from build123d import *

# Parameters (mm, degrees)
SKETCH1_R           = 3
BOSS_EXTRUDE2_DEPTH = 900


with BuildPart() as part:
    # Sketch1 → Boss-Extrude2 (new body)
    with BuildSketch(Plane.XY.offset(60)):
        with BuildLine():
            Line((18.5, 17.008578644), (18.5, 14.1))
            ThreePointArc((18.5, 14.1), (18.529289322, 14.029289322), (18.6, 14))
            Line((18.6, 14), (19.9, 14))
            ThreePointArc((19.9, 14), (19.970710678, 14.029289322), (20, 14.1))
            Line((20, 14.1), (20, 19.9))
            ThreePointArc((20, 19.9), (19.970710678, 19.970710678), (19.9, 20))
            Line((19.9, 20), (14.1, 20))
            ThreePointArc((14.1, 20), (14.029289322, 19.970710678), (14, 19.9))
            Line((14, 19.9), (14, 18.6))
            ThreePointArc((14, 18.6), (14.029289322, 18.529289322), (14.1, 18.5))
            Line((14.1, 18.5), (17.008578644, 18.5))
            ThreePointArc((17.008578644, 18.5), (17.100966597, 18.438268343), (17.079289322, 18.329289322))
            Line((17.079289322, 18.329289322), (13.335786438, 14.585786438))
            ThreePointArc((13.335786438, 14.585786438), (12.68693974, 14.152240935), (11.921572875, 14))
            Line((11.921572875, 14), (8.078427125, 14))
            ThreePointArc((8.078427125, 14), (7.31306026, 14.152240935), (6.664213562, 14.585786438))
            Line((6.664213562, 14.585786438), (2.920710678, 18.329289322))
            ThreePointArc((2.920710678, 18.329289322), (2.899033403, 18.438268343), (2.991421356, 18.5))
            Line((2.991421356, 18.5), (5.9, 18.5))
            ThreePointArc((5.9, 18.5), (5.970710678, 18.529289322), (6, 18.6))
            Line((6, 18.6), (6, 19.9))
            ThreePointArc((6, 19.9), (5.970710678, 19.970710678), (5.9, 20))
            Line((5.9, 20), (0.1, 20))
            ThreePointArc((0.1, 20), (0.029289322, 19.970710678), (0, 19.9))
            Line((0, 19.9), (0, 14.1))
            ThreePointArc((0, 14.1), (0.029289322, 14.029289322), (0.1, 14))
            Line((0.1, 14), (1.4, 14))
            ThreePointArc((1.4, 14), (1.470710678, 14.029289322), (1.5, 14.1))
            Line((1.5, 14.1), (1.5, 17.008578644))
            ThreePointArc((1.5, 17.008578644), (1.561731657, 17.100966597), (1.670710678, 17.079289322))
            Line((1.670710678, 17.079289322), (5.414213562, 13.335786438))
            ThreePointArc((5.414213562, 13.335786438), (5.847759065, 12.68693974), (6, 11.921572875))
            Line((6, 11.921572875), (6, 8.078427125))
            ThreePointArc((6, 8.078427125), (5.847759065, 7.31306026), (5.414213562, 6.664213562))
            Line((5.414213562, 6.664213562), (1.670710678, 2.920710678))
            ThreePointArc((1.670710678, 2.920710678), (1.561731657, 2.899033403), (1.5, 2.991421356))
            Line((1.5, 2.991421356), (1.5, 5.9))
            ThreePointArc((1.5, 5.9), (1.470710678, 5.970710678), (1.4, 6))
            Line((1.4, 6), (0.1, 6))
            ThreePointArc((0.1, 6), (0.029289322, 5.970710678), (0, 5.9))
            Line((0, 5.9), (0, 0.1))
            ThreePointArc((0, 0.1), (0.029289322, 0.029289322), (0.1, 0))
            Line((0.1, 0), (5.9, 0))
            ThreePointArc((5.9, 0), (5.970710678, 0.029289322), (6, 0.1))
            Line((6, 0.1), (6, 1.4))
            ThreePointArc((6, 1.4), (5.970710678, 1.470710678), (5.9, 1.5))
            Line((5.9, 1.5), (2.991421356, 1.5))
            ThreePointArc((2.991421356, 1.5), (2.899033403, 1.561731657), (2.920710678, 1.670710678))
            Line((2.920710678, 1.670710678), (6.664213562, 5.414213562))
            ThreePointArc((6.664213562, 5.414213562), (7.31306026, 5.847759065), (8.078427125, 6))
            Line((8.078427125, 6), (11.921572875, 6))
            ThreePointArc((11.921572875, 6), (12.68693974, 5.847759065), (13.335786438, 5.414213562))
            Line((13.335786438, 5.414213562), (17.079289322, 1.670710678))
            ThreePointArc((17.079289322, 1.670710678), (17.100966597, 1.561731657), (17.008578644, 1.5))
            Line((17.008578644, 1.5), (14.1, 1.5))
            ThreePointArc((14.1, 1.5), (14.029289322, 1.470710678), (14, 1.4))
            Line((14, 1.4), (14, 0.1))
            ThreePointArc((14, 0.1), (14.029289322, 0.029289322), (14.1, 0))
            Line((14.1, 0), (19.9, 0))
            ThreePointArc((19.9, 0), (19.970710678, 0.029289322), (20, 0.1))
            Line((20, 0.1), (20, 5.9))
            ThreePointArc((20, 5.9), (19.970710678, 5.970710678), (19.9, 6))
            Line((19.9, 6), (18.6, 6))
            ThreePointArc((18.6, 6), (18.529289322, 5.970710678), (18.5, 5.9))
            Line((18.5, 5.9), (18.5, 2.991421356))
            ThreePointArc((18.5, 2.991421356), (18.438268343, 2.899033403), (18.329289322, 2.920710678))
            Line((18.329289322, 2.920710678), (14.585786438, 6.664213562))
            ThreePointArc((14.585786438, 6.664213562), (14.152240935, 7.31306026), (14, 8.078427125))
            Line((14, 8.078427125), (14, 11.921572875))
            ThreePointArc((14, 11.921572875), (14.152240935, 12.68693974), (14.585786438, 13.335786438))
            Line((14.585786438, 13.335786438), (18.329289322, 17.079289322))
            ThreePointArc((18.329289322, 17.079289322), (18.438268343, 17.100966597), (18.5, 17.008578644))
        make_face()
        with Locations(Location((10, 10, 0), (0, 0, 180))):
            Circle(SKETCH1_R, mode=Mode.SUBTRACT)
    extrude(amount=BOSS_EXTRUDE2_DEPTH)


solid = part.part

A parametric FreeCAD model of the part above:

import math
import FreeCAD as App
import Part
import Sketcher

V = App.Vector
Q = App.Units.Quantity

doc = App.newDocument("Part")
params = doc.addObject("Spreadsheet::Sheet", "Params")
for row, (alias, value) in enumerate([
    ("sketch1_diameter", "6 mm"),
    ("sketch1_radius", "2 mm"),
    ("sketch1_radius2", "0.1 mm"),
    ("sketch1_width", "1.3 mm"),
    ("sketch1_width2", "5.8 mm"),
    ("pad1_length", "900 mm"),
], start=1):
    params.set(f"A{row}", alias)
    params.set(f"B{row}", "=" + value)
    params.setAlias(f"B{row}", alias)

body = doc.addObject("PartDesign::Body", "Body")

sketch1 = body.newObject("Sketcher::SketchObject", "Sketch")
sketch1.AttachmentSupport = (doc.getObject("XY_Plane"), [""])
sketch1.MapMode = "FlatFace"
sketch1.AttachmentOffset = App.Placement(V(0, 0, 60), App.Rotation())
sketch1.addGeometry(Part.LineSegment(V(18.5, 17.01, 0), V(18.5, 14.1, 0)), False)
sketch1.addGeometry(Part.ArcOfCircle(Part.Circle(V(18.6, 14.1, 0), V(0, 0, 1), 0.1), math.radians(180), math.radians(270)), False)
sketch1.addGeometry(Part.LineSegment(V(18.6, 14, 0), V(19.9, 14, 0)), False)
sketch1.addGeometry(Part.ArcOfCircle(Part.Circle(V(19.9, 14.1, 0), V(0, 0, 1), 0.1), math.radians(-90), math.radians(0)), False)
sketch1.addGeometry(Part.LineSegment(V(20, 14.1, 0), V(20, 19.9, 0)), False)
sketch1.addGeometry(Part.ArcOfCircle(Part.Circle(V(19.9, 19.9, 0), V(0, 0, 1), 0.1), math.radians(0), math.radians(90)), False)
sketch1.addGeometry(Part.LineSegment(V(19.9, 20, 0), V(14.1, 20, 0)), False)
sketch1.addGeometry(Part.ArcOfCircle(Part.Circle(V(14.1, 19.9, 0), V(0, 0, 1), 0.1), math.radians(90), math.radians(180)), False)
sketch1.addGeometry(Part.LineSegment(V(14, 19.9, 0), V(14, 18.6, 0)), False)
sketch1.addGeometry(Part.ArcOfCircle(Part.Circle(V(14.1, 18.6, 0), V(0, 0, 1), 0.1), math.radians(180), math.radians(270)), False)
sketch1.addGeometry(Part.LineSegment(V(14.1, 18.5, 0), V(17.01, 18.5, 0)), False)
sketch1.addGeometry(Part.ArcOfCircle(Part.Circle(V(17.01, 18.4, 0), V(0, 0, 1), 0.1), math.radians(-45), math.radians(90)), False)
sketch1.addGeometry(Part.LineSegment(V(17.08, 18.33, 0), V(13.34, 14.59, 0)), False)
sketch1.addGeometry(Part.ArcOfCircle(Part.Circle(V(11.92, 16, 0), V(0, 0, 1), 2), math.radians(-90), math.radians(-45)), False)
sketch1.addGeometry(Part.LineSegment(V(11.92, 14, 0), V(8.08, 14, 0)), False)
sketch1.addGeometry(Part.ArcOfCircle(Part.Circle(V(8.08, 16, 0), V(0, 0, 1), 2), math.radians(-135), math.radians(-90)), False)
sketch1.addGeometry(Part.LineSegment(V(6.66, 14.59, 0), V(2.92, 18.33, 0)), False)
sketch1.addGeometry(Part.ArcOfCircle(Part.Circle(V(2.99, 18.4, 0), V(0, 0, 1), 0.1), math.radians(90), math.radians(225)), False)
sketch1.addGeometry(Part.LineSegment(V(2.99, 18.5, 0), V(5.9, 18.5, 0)), False)
sketch1.addGeometry(Part.ArcOfCircle(Part.Circle(V(5.9, 18.6, 0), V(0, 0, 1), 0.1), math.radians(-90), math.radians(0)), False)
sketch1.addGeometry(Part.LineSegment(V(6, 18.6, 0), V(6, 19.9, 0)), False)
sketch1.addGeometry(Part.ArcOfCircle(Part.Circle(V(5.9, 19.9, 0), V(0, 0, 1), 0.1), math.radians(0), math.radians(90)), False)
sketch1.addGeometry(Part.LineSegment(V(5.9, 20, 0), V(0.1, 20, 0)), False)
sketch1.addGeometry(Part.ArcOfCircle(Part.Circle(V(0.1, 19.9, 0), V(0, 0, 1), 0.1), math.radians(90), math.radians(180)), False)
sketch1.addGeometry(Part.LineSegment(V(0, 19.9, 0), V(0, 14.1, 0)), False)
sketch1.addGeometry(Part.ArcOfCircle(Part.Circle(V(0.1, 14.1, 0), V(0, 0, 1), 0.1), math.radians(180), math.radians(270)), False)
sketch1.addGeometry(Part.LineSegment(V(0.1, 14, 0), V(1.4, 14, 0)), False)
sketch1.addGeometry(Part.ArcOfCircle(Part.Circle(V(1.4, 14.1, 0), V(0, 0, 1), 0.1), math.radians(-90), math.radians(0)), False)
sketch1.addGeometry(Part.LineSegment(V(1.5, 14.1, 0), V(1.5, 17.01, 0)), False)
sketch1.addGeometry(Part.ArcOfCircle(Part.Circle(V(1.6, 17.01, 0), V(0, 0, 1), 0.1), math.radians(45), math.radians(180)), False)
sketch1.addGeometry(Part.LineSegment(V(1.67, 17.08, 0), V(5.41, 13.34, 0)), False)
sketch1.addGeometry(Part.ArcOfCircle(Part.Circle(V(4, 11.92, 0), V(0, 0, 1), 2), math.radians(0), math.radians(45)), False)
sketch1.addGeometry(Part.LineSegment(V(6, 11.92, 0), V(6, 8.08, 0)), False)
sketch1.addGeometry(Part.ArcOfCircle(Part.Circle(V(4, 8.08, 0), V(0, 0, 1), 2), math.radians(-45), math.radians(0)), False)
sketch1.addGeometry(Part.LineSegment(V(5.41, 6.66, 0), V(1.67, 2.92, 0)), False)
sketch1.addGeometry(Part.ArcOfCircle(Part.Circle(V(1.6, 2.99, 0), V(0, 0, 1), 0.1), math.radians(180), math.radians(315)), False)
sketch1.addGeometry(Part.LineSegment(V(1.5, 2.99, 0), V(1.5, 5.9, 0)), False)
sketch1.addGeometry(Part.ArcOfCircle(Part.Circle(V(1.4, 5.9, 0), V(0, 0, 1), 0.1), math.radians(0), math.radians(90)), False)
sketch1.addGeometry(Part.LineSegment(V(1.4, 6, 0), V(0.1, 6, 0)), False)
sketch1.addGeometry(Part.ArcOfCircle(Part.Circle(V(0.1, 5.9, 0), V(0, 0, 1), 0.1), math.radians(90), math.radians(180)), False)
sketch1.addGeometry(Part.LineSegment(V(0, 5.9, 0), V(0, 0.1, 0)), False)
sketch1.addGeometry(Part.ArcOfCircle(Part.Circle(V(0.1, 0.1, 0), V(0, 0, 1), 0.1), math.radians(180), math.radians(270)), False)
sketch1.addGeometry(Part.LineSegment(V(0.1, 0, 0), V(5.9, 0, 0)), False)
sketch1.addGeometry(Part.ArcOfCircle(Part.Circle(V(5.9, 0.1, 0), V(0, 0, 1), 0.1), math.radians(-90), math.radians(0)), False)
sketch1.addGeometry(Part.LineSegment(V(6, 0.1, 0), V(6, 1.4, 0)), False)
sketch1.addGeometry(Part.ArcOfCircle(Part.Circle(V(5.9, 1.4, 0), V(0, 0, 1), 0.1), math.radians(0), math.radians(90)), False)
sketch1.addGeometry(Part.LineSegment(V(5.9, 1.5, 0), V(2.99, 1.5, 0)), False)
sketch1.addGeometry(Part.ArcOfCircle(Part.Circle(V(2.99, 1.6, 0), V(0, 0, 1), 0.1), math.radians(135), math.radians(270)), False)
sketch1.addGeometry(Part.LineSegment(V(2.92, 1.67, 0), V(6.66, 5.41, 0)), False)
sketch1.addGeometry(Part.ArcOfCircle(Part.Circle(V(8.08, 4, 0), V(0, 0, 1), 2), math.radians(90), math.radians(135)), False)
sketch1.addGeometry(Part.LineSegment(V(8.08, 6, 0), V(11.92, 6, 0)), False)
sketch1.addGeometry(Part.ArcOfCircle(Part.Circle(V(11.92, 4, 0), V(0, 0, 1), 2), math.radians(45), math.radians(90)), False)
sketch1.addGeometry(Part.LineSegment(V(13.34, 5.41, 0), V(17.08, 1.67, 0)), False)
sketch1.addGeometry(Part.ArcOfCircle(Part.Circle(V(17.01, 1.6, 0), V(0, 0, 1), 0.1), math.radians(-90), math.radians(45)), False)
sketch1.addGeometry(Part.LineSegment(V(17.01, 1.5, 0), V(14.1, 1.5, 0)), False)
sketch1.addGeometry(Part.ArcOfCircle(Part.Circle(V(14.1, 1.4, 0), V(0, 0, 1), 0.1), math.radians(90), math.radians(180)), False)
sketch1.addGeometry(Part.LineSegment(V(14, 1.4, 0), V(14, 0.1, 0)), False)
sketch1.addGeometry(Part.ArcOfCircle(Part.Circle(V(14.1, 0.1, 0), V(0, 0, 1), 0.1), math.radians(180), math.radians(270)), False)
sketch1.addGeometry(Part.LineSegment(V(14.1, 0, 0), V(19.9, 0, 0)), False)
sketch1.addGeometry(Part.ArcOfCircle(Part.Circle(V(19.9, 0.1, 0), V(0, 0, 1), 0.1), math.radians(-90), math.radians(0)), False)
sketch1.addGeometry(Part.LineSegment(V(20, 0.1, 0), V(20, 5.9, 0)), False)
sketch1.addGeometry(Part.ArcOfCircle(Part.Circle(V(19.9, 5.9, 0), V(0, 0, 1), 0.1), math.radians(0), math.radians(90)), False)
sketch1.addGeometry(Part.LineSegment(V(19.9, 6, 0), V(18.6, 6, 0)), False)
sketch1.addGeometry(Part.ArcOfCircle(Part.Circle(V(18.6, 5.9, 0), V(0, 0, 1), 0.1), math.radians(90), math.radians(180)), False)
sketch1.addGeometry(Part.LineSegment(V(18.5, 5.9, 0), V(18.5, 2.99, 0)), False)
sketch1.addGeometry(Part.ArcOfCircle(Part.Circle(V(18.4, 2.99, 0), V(0, 0, 1), 0.1), math.radians(-135), math.radians(0)), False)
sketch1.addGeometry(Part.LineSegment(V(18.33, 2.92, 0), V(14.59, 6.66, 0)), False)
sketch1.addGeometry(Part.ArcOfCircle(Part.Circle(V(16, 8.08, 0), V(0, 0, 1), 2), math.radians(180), math.radians(225)), False)
sketch1.addGeometry(Part.LineSegment(V(14, 8.08, 0), V(14, 11.92, 0)), False)
sketch1.addGeometry(Part.ArcOfCircle(Part.Circle(V(16, 11.92, 0), V(0, 0, 1), 2), math.radians(135), math.radians(180)), False)
sketch1.addGeometry(Part.LineSegment(V(14.59, 13.34, 0), V(18.33, 17.08, 0)), False)
sketch1.addGeometry(Part.ArcOfCircle(Part.Circle(V(18.4, 17.01, 0), V(0, 0, 1), 0.1), math.radians(0), math.radians(135)), False)
sketch1.addGeometry(Part.Circle(V(10, 10, 0), V(0, 0, 1), 3), False)
sketch1.addConstraint(Sketcher.Constraint("Tangent", 0, 2, 1, 1))
sketch1.addConstraint(Sketcher.Constraint("Tangent", 1, 2, 2, 1))
sketch1.addConstraint(Sketcher.Constraint("Tangent", 2, 2, 3, 1))
sketch1.addConstraint(Sketcher.Constraint("Tangent", 3, 2, 4, 1))
sketch1.addConstraint(Sketcher.Constraint("Tangent", 4, 2, 5, 1))
sketch1.addConstraint(Sketcher.Constraint("Tangent", 5, 2, 6, 1))
sketch1.addConstraint(Sketcher.Constraint("Tangent", 6, 2, 7, 1))
sketch1.addConstraint(Sketcher.Constraint("Tangent", 7, 2, 8, 1))
sketch1.addConstraint(Sketcher.Constraint("Tangent", 8, 2, 9, 1))
sketch1.addConstraint(Sketcher.Constraint("Tangent", 9, 2, 10, 1))
sketch1.addConstraint(Sketcher.Constraint("Tangent", 10, 2, 11, 2))
sketch1.addConstraint(Sketcher.Constraint("Tangent", 11, 1, 12, 1))
sketch1.addConstraint(Sketcher.Constraint("Tangent", 12, 2, 13, 2))
sketch1.addConstraint(Sketcher.Constraint("Tangent", 13, 1, 14, 1))
sketch1.addConstraint(Sketcher.Constraint("Tangent", 14, 2, 15, 2))
sketch1.addConstraint(Sketcher.Constraint("Tangent", 15, 1, 16, 1))
sketch1.addConstraint(Sketcher.Constraint("Tangent", 16, 2, 17, 2))
sketch1.addConstraint(Sketcher.Constraint("Tangent", 17, 1, 18, 1))
sketch1.addConstraint(Sketcher.Constraint("Tangent", 18, 2, 19, 1))
sketch1.addConstraint(Sketcher.Constraint("Tangent", 19, 2, 20, 1))
sketch1.addConstraint(Sketcher.Constraint("Tangent", 20, 2, 21, 1))
sketch1.addConstraint(Sketcher.Constraint("Tangent", 21, 2, 22, 1))
sketch1.addConstraint(Sketcher.Constraint("Tangent", 22, 2, 23, 1))
sketch1.addConstraint(Sketcher.Constraint("Tangent", 23, 2, 24, 1))
sketch1.addConstraint(Sketcher.Constraint("Tangent", 24, 2, 25, 1))
sketch1.addConstraint(Sketcher.Constraint("Tangent", 25, 2, 26, 1))
sketch1.addConstraint(Sketcher.Constraint("Tangent", 26, 2, 27, 1))
sketch1.addConstraint(Sketcher.Constraint("Tangent", 27, 2, 28, 1))
sketch1.addConstraint(Sketcher.Constraint("Tangent", 28, 2, 29, 2))
sketch1.addConstraint(Sketcher.Constraint("Tangent", 29, 1, 30, 1))
sketch1.addConstraint(Sketcher.Constraint("Tangent", 30, 2, 31, 2))
sketch1.addConstraint(Sketcher.Constraint("Tangent", 31, 1, 32, 1))
sketch1.addConstraint(Sketcher.Constraint("Tangent", 32, 2, 33, 2))
sketch1.addConstraint(Sketcher.Constraint("Tangent", 33, 1, 34, 1))
sketch1.addConstraint(Sketcher.Constraint("Tangent", 34, 2, 35, 2))
sketch1.addConstraint(Sketcher.Constraint("Tangent", 35, 1, 36, 1))
sketch1.addConstraint(Sketcher.Constraint("Tangent", 36, 2, 37, 1))
sketch1.addConstraint(Sketcher.Constraint("Tangent", 37, 2, 38, 1))
sketch1.addConstraint(Sketcher.Constraint("Tangent", 38, 2, 39, 1))
sketch1.addConstraint(Sketcher.Constraint("Tangent", 39, 2, 40, 1))
sketch1.addConstraint(Sketcher.Constraint("Tangent", 40, 2, 41, 1))
sketch1.addConstraint(Sketcher.Constraint("Tangent", 41, 2, 42, 1))
sketch1.addConstraint(Sketcher.Constraint("Tangent", 42, 2, 43, 1))
sketch1.addConstraint(Sketcher.Constraint("Tangent", 43, 2, 44, 1))
sketch1.addConstraint(Sketcher.Constraint("Tangent", 44, 2, 45, 1))
sketch1.addConstraint(Sketcher.Constraint("Tangent", 45, 2, 46, 1))
sketch1.addConstraint(Sketcher.Constraint("Tangent", 46, 2, 47, 2))
sketch1.addConstraint(Sketcher.Constraint("Tangent", 47, 1, 48, 1))
sketch1.addConstraint(Sketcher.Constraint("Tangent", 48, 2, 49, 2))
sketch1.addConstraint(Sketcher.Constraint("Tangent", 49, 1, 50, 1))
sketch1.addConstraint(Sketcher.Constraint("Tangent", 50, 2, 51, 2))
sketch1.addConstraint(Sketcher.Constraint("Tangent", 51, 1, 52, 1))
sketch1.addConstraint(Sketcher.Constraint("Tangent", 52, 2, 53, 2))
sketch1.addConstraint(Sketcher.Constraint("Tangent", 53, 1, 54, 1))
sketch1.addConstraint(Sketcher.Constraint("Tangent", 54, 2, 55, 1))
sketch1.addConstraint(Sketcher.Constraint("Tangent", 55, 2, 56, 1))
sketch1.addConstraint(Sketcher.Constraint("Tangent", 56, 2, 57, 1))
sketch1.addConstraint(Sketcher.Constraint("Tangent", 57, 2, 58, 1))
sketch1.addConstraint(Sketcher.Constraint("Tangent", 58, 2, 59, 1))
sketch1.addConstraint(Sketcher.Constraint("Tangent", 59, 2, 60, 1))
sketch1.addConstraint(Sketcher.Constraint("Tangent", 60, 2, 61, 1))
sketch1.addConstraint(Sketcher.Constraint("Tangent", 61, 2, 62, 1))
sketch1.addConstraint(Sketcher.Constraint("Tangent", 62, 2, 63, 1))
sketch1.addConstraint(Sketcher.Constraint("Tangent", 63, 2, 64, 1))
sketch1.addConstraint(Sketcher.Constraint("Tangent", 64, 2, 65, 2))
sketch1.addConstraint(Sketcher.Constraint("Tangent", 65, 1, 66, 1))
sketch1.addConstraint(Sketcher.Constraint("Tangent", 66, 2, 67, 2))
sketch1.addConstraint(Sketcher.Constraint("Tangent", 67, 1, 68, 1))
sketch1.addConstraint(Sketcher.Constraint("Tangent", 68, 2, 69, 2))
sketch1.addConstraint(Sketcher.Constraint("Tangent", 69, 1, 70, 1))
sketch1.addConstraint(Sketcher.Constraint("Tangent", 70, 2, 71, 2))
sketch1.addConstraint(Sketcher.Constraint("Tangent", 71, 1, 0, 1))
sketch1.addConstraint(Sketcher.Constraint("Vertical", 0))
sketch1.addConstraint(Sketcher.Constraint("Horizontal", 2))
sketch1.addConstraint(Sketcher.Constraint("Vertical", 4))
sketch1.addConstraint(Sketcher.Constraint("Horizontal", 6))
sketch1.addConstraint(Sketcher.Constraint("Vertical", 8))
sketch1.addConstraint(Sketcher.Constraint("Horizontal", 10))
sketch1.addConstraint(Sketcher.Constraint("Horizontal", 14))
sketch1.addConstraint(Sketcher.Constraint("Horizontal", 18))
sketch1.addConstraint(Sketcher.Constraint("Vertical", 20))
sketch1.addConstraint(Sketcher.Constraint("Horizontal", 22))
sketch1.addConstraint(Sketcher.Constraint("Vertical", 24))
sketch1.addConstraint(Sketcher.Constraint("Horizontal", 26))
sketch1.addConstraint(Sketcher.Constraint("Vertical", 28))
sketch1.addConstraint(Sketcher.Constraint("Vertical", 32))
sketch1.addConstraint(Sketcher.Constraint("Vertical", 36))
sketch1.addConstraint(Sketcher.Constraint("Horizontal", 38))
sketch1.addConstraint(Sketcher.Constraint("Vertical", 40))
sketch1.addConstraint(Sketcher.Constraint("Horizontal", 42))
sketch1.addConstraint(Sketcher.Constraint("Vertical", 44))
sketch1.addConstraint(Sketcher.Constraint("Horizontal", 46))
sketch1.addConstraint(Sketcher.Constraint("Horizontal", 50))
sketch1.addConstraint(Sketcher.Constraint("Horizontal", 54))
sketch1.addConstraint(Sketcher.Constraint("Vertical", 56))
sketch1.addConstraint(Sketcher.Constraint("Horizontal", 58))
sketch1.addConstraint(Sketcher.Constraint("Vertical", 60))
sketch1.addConstraint(Sketcher.Constraint("Horizontal", 62))
sketch1.addConstraint(Sketcher.Constraint("Vertical", 64))
sketch1.addConstraint(Sketcher.Constraint("Vertical", 68))
sketch1.addConstraint(Sketcher.Constraint("Equal", 1, 3))
sketch1.addConstraint(Sketcher.Constraint("Equal", 3, 5))
sketch1.addConstraint(Sketcher.Constraint("Equal", 5, 7))
sketch1.addConstraint(Sketcher.Constraint("Equal", 7, 9))
sketch1.addConstraint(Sketcher.Constraint("Equal", 9, 11))
sketch1.addConstraint(Sketcher.Constraint("Equal", 13, 15))
sketch1.addConstraint(Sketcher.Constraint("Equal", 11, 17))
sketch1.addConstraint(Sketcher.Constraint("Equal", 17, 19))
sketch1.addConstraint(Sketcher.Constraint("Equal", 19, 21))
sketch1.addConstraint(Sketcher.Constraint("Equal", 21, 23))
sketch1.addConstraint(Sketcher.Constraint("Equal", 23, 25))
sketch1.addConstraint(Sketcher.Constraint("Equal", 25, 27))
sketch1.addConstraint(Sketcher.Constraint("Equal", 27, 29))
sketch1.addConstraint(Sketcher.Constraint("Equal", 15, 31))
sketch1.addConstraint(Sketcher.Constraint("Equal", 31, 33))
sketch1.addConstraint(Sketcher.Constraint("Equal", 29, 35))
sketch1.addConstraint(Sketcher.Constraint("Equal", 35, 37))
sketch1.addConstraint(Sketcher.Constraint("Equal", 37, 39))
sketch1.addConstraint(Sketcher.Constraint("Equal", 39, 41))
sketch1.addConstraint(Sketcher.Constraint("Equal", 41, 43))
sketch1.addConstraint(Sketcher.Constraint("Equal", 43, 45))
sketch1.addConstraint(Sketcher.Constraint("Equal", 45, 47))
sketch1.addConstraint(Sketcher.Constraint("Equal", 33, 49))
sketch1.addConstraint(Sketcher.Constraint("Equal", 49, 51))
sketch1.addConstraint(Sketcher.Constraint("Equal", 47, 53))
sketch1.addConstraint(Sketcher.Constraint("Equal", 53, 55))
sketch1.addConstraint(Sketcher.Constraint("Equal", 55, 57))
sketch1.addConstraint(Sketcher.Constraint("Equal", 57, 59))
sketch1.addConstraint(Sketcher.Constraint("Equal", 59, 61))
sketch1.addConstraint(Sketcher.Constraint("Equal", 61, 63))
sketch1.addConstraint(Sketcher.Constraint("Equal", 63, 65))
sketch1.addConstraint(Sketcher.Constraint("Equal", 51, 67))
sketch1.addConstraint(Sketcher.Constraint("Equal", 67, 69))
sketch1.addConstraint(Sketcher.Constraint("Equal", 65, 71))
sketch1.addConstraint(Sketcher.Constraint("PointOnObject", 23, 2, -2))
sketch1.addConstraint(Sketcher.Constraint("PointOnObject", 39, 2, -2))
sketch1.addConstraint(Sketcher.Constraint("PointOnObject", 41, 2, -1))
sketch1.addConstraint(Sketcher.Constraint("PointOnObject", 57, 2, -1))
sketch1.addConstraint(Sketcher.Constraint("Perpendicular", 12, 16))
sketch1.addConstraint(Sketcher.Constraint("Parallel", 16, 30))
sketch1.addConstraint(Sketcher.Constraint("Perpendicular", 30, 34))
sketch1.addConstraint(Sketcher.Constraint("Parallel", 34, 48))
sketch1.addConstraint(Sketcher.Constraint("Perpendicular", 48, 52))
sketch1.addConstraint(Sketcher.Constraint("Parallel", 52, 66))
sketch1.addConstraint(Sketcher.Constraint("Perpendicular", 66, 70))
sketch1.addConstraint(Sketcher.Constraint("Horizontal", 11, 3, 17, 3))
sketch1.addConstraint(Sketcher.Constraint("Horizontal", 7, 3, 21, 3))
sketch1.addConstraint(Sketcher.Constraint("Horizontal", 3, 3, 25, 3))
sketch1.addConstraint(Sketcher.Constraint("Horizontal", 47, 3, 53, 3))
sketch1.addConstraint(Sketcher.Constraint("Horizontal", 39, 3, 61, 3))
sketch1.addConstraint(Sketcher.Constraint("Horizontal", 35, 3, 65, 3))
sketch1.addConstraint(Sketcher.Constraint("Horizontal", 33, 3, 67, 3))
sketch1.addConstraint(Sketcher.Constraint("Horizontal", 31, 3, 69, 3))
sketch1.addConstraint(Sketcher.Constraint("Horizontal", 29, 3, 71, 3))
sketch1.addConstraint(Sketcher.Constraint("Horizontal", 2, 2, 13, 1))
sketch1.addConstraint(Sketcher.Constraint("Horizontal", 12, 2, 15, 1))
sketch1.addConstraint(Sketcher.Constraint("Horizontal", 38, 2, 49, 1))
sketch1.addConstraint(Sketcher.Constraint("Vertical", 29, 3, 35, 3))
sketch1.addConstraint(Sketcher.Constraint("Vertical", 21, 3, 43, 3))
sketch1.addConstraint(Sketcher.Constraint("Vertical", 17, 3, 47, 3))
sketch1.addConstraint(Sketcher.Constraint("Vertical", 15, 3, 49, 3))
sketch1.addConstraint(Sketcher.Constraint("Vertical", 13, 3, 51, 3))
sketch1.addConstraint(Sketcher.Constraint("Vertical", 9, 3, 55, 3))
sketch1.addConstraint(Sketcher.Constraint("Vertical", 5, 3, 59, 3))
sketch1.addConstraint(Sketcher.Constraint("Vertical", 20, 2, 31, 1))
sketch1.addConstraint(Sketcher.Constraint("Vertical", 56, 2, 67, 1))
sketch1.addConstraint(Sketcher.Constraint("Equal", 10, 18))
sketch1.addConstraint(Sketcher.Constraint("Equal", 6, 22))
sketch1.addConstraint(Sketcher.Constraint("Equal", 54, 0))
sketch1.addConstraint(Sketcher.Constraint("Equal", 58, 4))
sketch1.addConstraint(Sketcher.Constraint("Equal", 62, 8))
sketch1.addConstraint(Sketcher.Constraint("Equal", 50, 32))
sketch1.addConstraint(Sketcher.Constraint("Equal", 28, 36))
sketch1.addConstraint(Sketcher.Constraint("Equal", 24, 40))
sketch1.addConstraint(Sketcher.Constraint("Diameter", 72, Q("6 mm")))
sketch1.addConstraint(Sketcher.Constraint("Radius", 13, Q("2 mm")))
sketch1.addConstraint(Sketcher.Constraint("Radius", 1, Q("0.1 mm")))
sketch1.addConstraint(Sketcher.Constraint("DistanceX", 2, 1, 2, 2, Q("1.3 mm")))
sketch1.addConstraint(Sketcher.Constraint("DistanceX", 6, 2, 6, 1, Q("5.8 mm")))
sketch1.addConstraint(Sketcher.Constraint("DistanceY", -1, 1, 13, 3, Q("16 mm")))
sketch1.addConstraint(Sketcher.Constraint("DistanceX", -1, 1, 72, 3, Q("10 mm")))
sketch1.addConstraint(Sketcher.Constraint("DistanceY", -1, 1, 72, 3, Q("10 mm")))
sketch1.addConstraint(Sketcher.Constraint("DistanceX", 10, 1, 10, 2, Q("2.908579 mm")))
sketch1.setExpression("Constraints[174]", "Params.sketch1_diameter")
sketch1.setExpression("Constraints[175]", "Params.sketch1_radius")
sketch1.setExpression("Constraints[176]", "Params.sketch1_radius2")
sketch1.setExpression("Constraints[177]", "Params.sketch1_width")
sketch1.setExpression("Constraints[178]", "Params.sketch1_width2")
pad1 = body.newObject("PartDesign::Pad", "Pad")
pad1.Profile = sketch1
pad1.setExpression("Length", "Params.pad1_length")

doc.recompute()
